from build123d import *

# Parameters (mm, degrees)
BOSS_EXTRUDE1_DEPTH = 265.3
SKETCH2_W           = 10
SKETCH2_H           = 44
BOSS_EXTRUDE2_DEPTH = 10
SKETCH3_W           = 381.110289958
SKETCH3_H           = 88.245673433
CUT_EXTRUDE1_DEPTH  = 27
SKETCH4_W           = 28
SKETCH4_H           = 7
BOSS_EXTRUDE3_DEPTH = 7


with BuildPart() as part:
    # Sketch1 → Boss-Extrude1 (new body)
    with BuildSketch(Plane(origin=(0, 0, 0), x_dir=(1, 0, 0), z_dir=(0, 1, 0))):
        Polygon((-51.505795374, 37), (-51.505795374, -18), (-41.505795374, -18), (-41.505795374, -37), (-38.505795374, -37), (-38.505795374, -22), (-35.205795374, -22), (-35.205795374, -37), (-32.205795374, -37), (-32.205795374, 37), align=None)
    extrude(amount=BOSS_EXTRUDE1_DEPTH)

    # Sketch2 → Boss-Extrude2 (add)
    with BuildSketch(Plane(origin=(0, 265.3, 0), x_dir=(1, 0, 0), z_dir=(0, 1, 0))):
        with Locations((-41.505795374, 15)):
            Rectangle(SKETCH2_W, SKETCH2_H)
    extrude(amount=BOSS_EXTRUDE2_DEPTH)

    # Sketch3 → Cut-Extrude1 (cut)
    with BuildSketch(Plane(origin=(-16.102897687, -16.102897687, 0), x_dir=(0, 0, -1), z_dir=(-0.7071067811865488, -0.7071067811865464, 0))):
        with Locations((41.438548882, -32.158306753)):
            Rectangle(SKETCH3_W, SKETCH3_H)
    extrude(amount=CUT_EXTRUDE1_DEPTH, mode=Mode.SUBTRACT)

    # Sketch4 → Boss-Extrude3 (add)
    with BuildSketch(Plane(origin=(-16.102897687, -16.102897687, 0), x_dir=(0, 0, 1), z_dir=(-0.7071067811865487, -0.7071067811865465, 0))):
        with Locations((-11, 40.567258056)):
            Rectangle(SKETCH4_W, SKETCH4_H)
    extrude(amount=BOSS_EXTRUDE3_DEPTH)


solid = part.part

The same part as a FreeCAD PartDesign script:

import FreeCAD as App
import Part
import Sketcher
from FreeCAD import Vector

doc = App.newDocument("Part")
body = doc.addObject("PartDesign::Body", "Body")

# Sketch on XZ plane
sketch1 = doc.addObject("Sketcher::SketchObject", "Sketch")
body.addObject(sketch1)
sketch1.AttachmentSupport = (doc.XZ_Plane, [""])
sketch1.MapMode = "FlatFace"
sketch1.addGeometry([
    Part.LineSegment(Vector(-51.5, -37, 0), Vector(-51.5, 18, 0)),  # 0
    Part.LineSegment(Vector(-51.5, 18, 0), Vector(-41.5, 18, 0)),  # 1
    Part.LineSegment(Vector(-41.5, 18, 0), Vector(-41.5, 37, 0)),  # 2
    Part.LineSegment(Vector(-41.5, 37, 0), Vector(-38.5, 37, 0)),  # 3
    Part.LineSegment(Vector(-38.5, 37, 0), Vector(-38.5, 22, 0)),  # 4
    Part.LineSegment(Vector(-38.5, 22, 0), Vector(-35.2, 22, 0)),  # 5
    Part.LineSegment(Vector(-35.2, 22, 0), Vector(-35.2, 37, 0)),  # 6
    Part.LineSegment(Vector(-35.2, 37, 0), Vector(-32.2, 37, 0)),  # 7
    Part.LineSegment(Vector(-32.2, 37, 0), Vector(-32.2, -37, 0)),  # 8
    Part.LineSegment(Vector(-32.2, -37, 0), Vector(-51.5, -37, 0)),  # 9
], False)
sketch1.addConstraint([
    Sketcher.Constraint("Coincident", 0, 2, 1, 1),
    Sketcher.Constraint("Coincident", 1, 2, 2, 1),
    Sketcher.Constraint("Coincident", 2, 2, 3, 1),
    Sketcher.Constraint("Coincident", 3, 2, 4, 1),
    Sketcher.Constraint("Coincident", 4, 2, 5, 1),
    Sketcher.Constraint("Coincident", 5, 2, 6, 1),
    Sketcher.Constraint("Coincident", 6, 2, 7, 1),
    Sketcher.Constraint("Coincident", 7, 2, 8, 1),
    Sketcher.Constraint("Coincident", 8, 2, 9, 1),
    Sketcher.Constraint("Coincident", 9, 2, 0, 1),
    Sketcher.Constraint("Vertical", 0),
    Sketcher.Constraint("Horizontal", 1),
    Sketcher.Constraint("Vertical", 2),
    Sketcher.Constraint("Horizontal", 3),
    Sketcher.Constraint("Vertical", 4),
    Sketcher.Constraint("Horizontal", 5),
    Sketcher.Constraint("Vertical", 6),
    Sketcher.Constraint("Horizontal", 7),
    Sketcher.Constraint("Vertical", 8),
    Sketcher.Constraint("Horizontal", 9),
    Sketcher.Constraint("Horizontal", 3, 2, 6, 2),
    Sketcher.Constraint("Equal", 3, 7),
    Sketcher.Constraint("DistanceX", 1, 1, 1, 2, 10.0),
    Sketcher.Constraint("DistanceX", 3, 1, 3, 2, 3.0),
    Sketcher.Constraint("DistanceY", 0, 1, 0, 2, 55.0),
    Sketcher.Constraint("DistanceY", 2, 1, 2, 2, 19.0),
    Sketcher.Constraint("DistanceY", 4, 2, 4, 1, 15.0),
    Sketcher.Constraint("DistanceX", 5, 1, 5, 2, 3.3),
    Sketcher.Constraint("DistanceY", -1, 1, 0, 2, 18.0),
    Sketcher.Constraint("DistanceX", 0, 2, -1, 1, 51.505795),
])
pad1 = doc.addObject("PartDesign::Pad", "Pad")
body.addObject(pad1)
pad1.Profile = sketch1
pad1.Length = 265.3
pad1.Reversed = True

# Sketch on XZ plane
sketch2 = doc.addObject("Sketcher::SketchObject", "Sketch001")
body.addObject(sketch2)
sketch2.AttachmentSupport = (doc.XZ_Plane, [""])
sketch2.MapMode = "FlatFace"
sketch2.AttachmentOffset = App.Placement(Vector(0, 0, -265.3), App.Rotation())
sketch2.addGeometry([
    Part.LineSegment(Vector(-47, -37, 0), Vector(-47, 7, 0)),
    Part.LineSegment(Vector(-47, 7, 0), Vector(-37, 7, 0)),
    Part.LineSegment(Vector(-37, 7, 0), Vector(-37, -37, 0)),
    Part.LineSegment(Vector(-37, -37, 0), Vector(-47, -37, 0)),
], False)
sketch2.addConstraint([
    Sketcher.Constraint("Coincident", 0, 2, 1, 1),
    Sketcher.Constraint("Coincident", 1, 2, 2, 1),
    Sketcher.Constraint("Coincident", 2, 2, 3, 1),
    Sketcher.Constraint("Coincident", 3, 2, 0, 1),
    Sketcher.Constraint("Vertical", 0),
    Sketcher.Constraint("Horizontal", 1),
    Sketcher.Constraint("Vertical", 2),
    Sketcher.Constraint("Horizontal", 3),
    Sketcher.Constraint("DistanceX", 1, 1, 1, 2, 10.0),
    Sketcher.Constraint("DistanceY", 0, 1, 0, 2, 44.0),
    Sketcher.Constraint("DistanceY", -1, 1, 0, 2, 7.0),
    Sketcher.Constraint("DistanceX", 0, 2, -1, 1, 46.505795),
])
pad2 = doc.addObject("PartDesign::Pad", "Pad001")
body.addObject(pad2)
pad2.Profile = sketch2
pad2.Length = 10
pad2.Reversed = True

# Sketch on an angled plane
sketch3 = doc.addObject("Sketcher::SketchObject", "Sketch002")
body.addObject(sketch3)
sketch3.Placement = App.Placement(Vector(-16.102898, -16.102898, 0), App.Rotation(Vector(0, 0, -1), Vector(0.707106781, -0.707106781, 0), Vector(-0.707106781, -0.707106781, 0), "ZXY"))
sketch3.addGeometry([
    Part.LineSegment(Vector(-149, 12, 0), Vector(-149, -76, 0)),
    Part.LineSegment(Vector(-149, -76, 0), Vector(232, -76, 0)),
    Part.LineSegment(Vector(232, -76, 0), Vector(232, 12, 0)),
    Part.LineSegment(Vector(232, 12, 0), Vector(-149, 12, 0)),
], False)
sketch3.addConstraint([
    Sketcher.Constraint("Coincident", 0, 2, 1, 1),
    Sketcher.Constraint("Coincident", 1, 2, 2, 1),
    Sketcher.Constraint("Coincident", 2, 2, 3, 1),
    Sketcher.Constraint("Coincident", 3, 2, 0, 1),
    Sketcher.Constraint("Vertical", 0),
    Sketcher.Constraint("Horizontal", 1),
    Sketcher.Constraint("Vertical", 2),
    Sketcher.Constraint("Horizontal", 3),
    Sketcher.Constraint("DistanceX", 1, 1, 1, 2, 381.11029),
    Sketcher.Constraint("DistanceY", 0, 2, 0, 1, 88.245673),
    Sketcher.Constraint("DistanceY", -1, 1, 2, 2, 11.96453),
    Sketcher.Constraint("DistanceX", 0, 2, -1, 1, 149.116596),
])
pocket1 = doc.addObject("PartDesign::Pocket", "Pocket")
body.addObject(pocket1)
pocket1.Profile = sketch3
pocket1.Length = 27
pocket1.Reversed = True

# Sketch on an angled plane
sketch4 = doc.addObject("Sketcher::SketchObject", "Sketch003")
body.addObject(sketch4)
sketch4.Placement = App.Placement(Vector(-16.102898, -16.102898, 0), App.Rotation(Vector(0, 0, 1), Vector(-0.707106781, 0.707106781, 0), Vector(-0.707106781, -0.707106781, 0), "ZXY"))
sketch4.addGeometry([
    Part.LineSegment(Vector(-25, 44, 0), Vector(-25, 37, 0)),
    Part.LineSegment(Vector(-25, 37, 0), Vector(3, 37, 0)),
    Part.LineSegment(Vector(3, 37, 0), Vector(3, 44, 0)),
    Part.LineSegment(Vector(3, 44, 0), Vector(-25, 44, 0)),
], False)
sketch4.addConstraint([
    Sketcher.Constraint("Coincident", 0, 2, 1, 1),
    Sketcher.Constraint("Coincident", 1, 2, 2, 1),
    Sketcher.Constraint("Coincident", 2, 2, 3, 1),
    Sketcher.Constraint("Coincident", 3, 2, 0, 1),
    Sketcher.Constraint("Vertical", 0),
    Sketcher.Constraint("Horizontal", 1),
    Sketcher.Constraint("Vertical", 2),
    Sketcher.Constraint("Horizontal", 3),
    Sketcher.Constraint("DistanceX", 1, 1, 1, 2, 28.0),
    Sketcher.Constraint("DistanceY", 0, 2, 0, 1, 7.0),
    Sketcher.Constraint("DistanceX", 0, 2, -1, 1, 25.0),
    Sketcher.Constraint("DistanceY", -1, 1, 0, 2, 37.067258),
])
pad3 = doc.addObject("PartDesign::Pad", "Pad002")
body.addObject(pad3)
pad3.Profile = sketch4
pad3.Length = 7

doc.recompute()
